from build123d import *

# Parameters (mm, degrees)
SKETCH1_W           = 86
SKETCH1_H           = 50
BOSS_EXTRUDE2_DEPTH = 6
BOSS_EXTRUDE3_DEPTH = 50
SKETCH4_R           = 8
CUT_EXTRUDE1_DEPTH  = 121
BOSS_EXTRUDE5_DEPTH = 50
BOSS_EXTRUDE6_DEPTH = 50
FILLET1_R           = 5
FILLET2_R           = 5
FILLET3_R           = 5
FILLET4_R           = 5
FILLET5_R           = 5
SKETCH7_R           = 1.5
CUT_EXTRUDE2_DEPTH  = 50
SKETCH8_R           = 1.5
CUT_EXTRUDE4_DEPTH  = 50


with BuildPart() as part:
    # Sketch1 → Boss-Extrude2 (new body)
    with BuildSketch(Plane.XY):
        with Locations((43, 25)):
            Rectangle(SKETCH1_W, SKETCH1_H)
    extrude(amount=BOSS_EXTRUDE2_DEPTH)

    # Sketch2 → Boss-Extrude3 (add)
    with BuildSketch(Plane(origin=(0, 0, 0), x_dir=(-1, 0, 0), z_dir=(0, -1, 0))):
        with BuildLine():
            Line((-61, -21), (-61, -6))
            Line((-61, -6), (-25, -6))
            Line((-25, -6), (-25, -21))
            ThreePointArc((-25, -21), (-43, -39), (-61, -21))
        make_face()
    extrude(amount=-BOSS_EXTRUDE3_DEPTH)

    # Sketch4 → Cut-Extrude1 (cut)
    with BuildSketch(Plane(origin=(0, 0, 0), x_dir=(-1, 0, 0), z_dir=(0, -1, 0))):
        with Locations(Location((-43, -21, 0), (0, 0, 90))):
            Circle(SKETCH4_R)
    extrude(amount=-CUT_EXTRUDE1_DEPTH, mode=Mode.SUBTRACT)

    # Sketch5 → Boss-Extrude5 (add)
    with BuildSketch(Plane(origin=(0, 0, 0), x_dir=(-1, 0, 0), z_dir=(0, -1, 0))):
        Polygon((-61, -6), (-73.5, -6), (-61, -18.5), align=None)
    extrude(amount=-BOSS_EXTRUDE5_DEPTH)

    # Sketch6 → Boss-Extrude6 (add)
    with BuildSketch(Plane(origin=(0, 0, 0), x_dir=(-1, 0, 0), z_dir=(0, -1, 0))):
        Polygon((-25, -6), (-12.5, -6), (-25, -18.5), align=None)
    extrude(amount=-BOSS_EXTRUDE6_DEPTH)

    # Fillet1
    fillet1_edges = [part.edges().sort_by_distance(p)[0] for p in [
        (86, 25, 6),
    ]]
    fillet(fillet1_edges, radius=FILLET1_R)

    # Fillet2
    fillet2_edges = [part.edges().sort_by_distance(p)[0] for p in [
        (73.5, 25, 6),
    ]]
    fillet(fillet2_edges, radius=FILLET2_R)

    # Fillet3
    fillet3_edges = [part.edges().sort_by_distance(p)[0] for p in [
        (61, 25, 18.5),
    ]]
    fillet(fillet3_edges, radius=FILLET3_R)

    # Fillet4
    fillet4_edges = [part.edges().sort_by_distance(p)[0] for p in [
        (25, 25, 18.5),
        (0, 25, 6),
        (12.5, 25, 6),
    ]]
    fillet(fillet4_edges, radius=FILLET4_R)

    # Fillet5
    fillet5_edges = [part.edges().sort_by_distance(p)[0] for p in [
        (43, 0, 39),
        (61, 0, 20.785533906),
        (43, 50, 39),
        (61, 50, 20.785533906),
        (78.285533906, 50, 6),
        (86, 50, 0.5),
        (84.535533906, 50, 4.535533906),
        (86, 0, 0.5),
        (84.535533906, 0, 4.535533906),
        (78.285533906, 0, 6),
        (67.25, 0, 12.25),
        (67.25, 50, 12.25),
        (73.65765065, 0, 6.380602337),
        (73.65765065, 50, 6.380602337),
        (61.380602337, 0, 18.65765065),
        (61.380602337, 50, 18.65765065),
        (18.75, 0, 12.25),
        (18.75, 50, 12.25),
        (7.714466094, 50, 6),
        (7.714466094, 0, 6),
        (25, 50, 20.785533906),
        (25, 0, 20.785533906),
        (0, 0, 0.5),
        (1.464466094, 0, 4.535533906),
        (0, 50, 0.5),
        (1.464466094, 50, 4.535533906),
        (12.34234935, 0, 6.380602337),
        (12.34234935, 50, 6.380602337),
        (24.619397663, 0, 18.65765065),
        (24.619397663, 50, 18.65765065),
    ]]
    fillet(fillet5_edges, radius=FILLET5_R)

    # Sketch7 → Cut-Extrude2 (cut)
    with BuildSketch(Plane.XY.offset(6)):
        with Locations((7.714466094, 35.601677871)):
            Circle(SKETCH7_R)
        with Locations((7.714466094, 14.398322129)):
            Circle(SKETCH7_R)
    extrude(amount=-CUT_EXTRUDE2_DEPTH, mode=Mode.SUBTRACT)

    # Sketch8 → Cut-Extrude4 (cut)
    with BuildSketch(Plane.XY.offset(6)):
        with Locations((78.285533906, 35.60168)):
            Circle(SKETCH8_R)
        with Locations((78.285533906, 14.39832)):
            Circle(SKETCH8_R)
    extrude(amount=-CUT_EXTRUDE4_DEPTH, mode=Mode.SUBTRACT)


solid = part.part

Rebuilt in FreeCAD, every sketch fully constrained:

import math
import FreeCAD as App
import Part
import Sketcher

V = App.Vector


def edges_at(feature, points):
    """Names of the edges that pass closest to the given points."""
    edges = feature.Shape.Edges
    near = lambda p: min(range(len(edges)), key=lambda i: edges[i].distToShape(Part.Vertex(*p))[0])
    return sorted({f"Edge{near(p) + 1}" for p in points})


def add_polygon(sketch, points):
    """Adds a closed chain of lines whose ends are joined by coincident constraints."""
    first, n = sketch.GeometryCount, len(points)
    for a, b in zip(points, points[1:] + points[:1]):
        sketch.addGeometry(Part.LineSegment(App.Vector(*a, 0), App.Vector(*b, 0)), False)
    for i in range(n):
        sketch.addConstraint(Sketcher.Constraint("Coincident", first + i, 2, first + (i + 1) % n, 1))

doc = App.newDocument("Part")
body = doc.addObject("PartDesign::Body", "Body")

# Sketch on XY plane
sketch1 = body.newObject("Sketcher::SketchObject", "Sketch")
sketch1.AttachmentSupport = (doc.getObject("XY_Plane"), [""])
sketch1.MapMode = "FlatFace"
add_polygon(sketch1, [(0, 50), (0, 0), (86, 0), (86, 50)])  # lines 0-3
sketch1.addConstraint([
    Sketcher.Constraint("Vertical", 0),
    Sketcher.Constraint("Horizontal", 1),
    Sketcher.Constraint("Vertical", 2),
    Sketcher.Constraint("Horizontal", 3),
    Sketcher.Constraint("Coincident", 0, 2, -1, 1),
    Sketcher.Constraint("DistanceX", 1, 1, 1, 2, 86.0),
    Sketcher.Constraint("DistanceY", 0, 2, 0, 1, 50.0),
])
pad1 = body.newObject("PartDesign::Pad", "Pad")
pad1.Profile = sketch1
pad1.Length = 6

# Sketch on XZ plane
sketch2 = body.newObject("Sketcher::SketchObject", "Sketch001")
sketch2.AttachmentSupport = (doc.getObject("XZ_Plane"), [""])
sketch2.MapMode = "FlatFace"
sketch2.addGeometry([
    Part.LineSegment(V(61, 6, 0), V(61, 21, 0)),
    Part.ArcOfCircle(Part.Circle(V(43, 21, 0), V(0, 0, 1), 18), math.radians(0), math.radians(180)),
    Part.LineSegment(V(25, 21, 0), V(25, 6, 0)),
    Part.LineSegment(V(25, 6, 0), V(61, 6, 0)),
], False)
sketch2.addConstraint([
    Sketcher.Constraint("Tangent", 0, 2, 1, 1),
    Sketcher.Constraint("Tangent", 1, 2, 2, 1),
    Sketcher.Constraint("Coincident", 2, 2, 3, 1),
    Sketcher.Constraint("Coincident", 3, 2, 0, 1),
    Sketcher.Constraint("Vertical", 0),
    Sketcher.Constraint("Vertical", 2),
    Sketcher.Constraint("Horizontal", 3),
    Sketcher.Constraint("Radius", 1, 18.0),
    Sketcher.Constraint("DistanceY", 0, 1, 0, 2, 15.0),
    Sketcher.Constraint("DistanceX", -1, 1, 1, 3, 43.0),
    Sketcher.Constraint("DistanceY", -1, 1, 1, 3, 21.0),
])
pad2 = body.newObject("PartDesign::Pad", "Pad001")
pad2.Profile = sketch2
pad2.Length = 50
pad2.Reversed = True

# Sketch on XZ plane
sketch3 = body.newObject("Sketcher::SketchObject", "Sketch002")
sketch3.AttachmentSupport = (doc.getObject("XZ_Plane"), [""])
sketch3.MapMode = "FlatFace"
sketch3.addGeometry(Part.Circle(V(43, 21, 0), V(0, 0, 1), 8), False)
sketch3.addConstraint([
    Sketcher.Constraint("Diameter", 0, 16.0),
    Sketcher.Constraint("DistanceX", -1, 1, 0, 3, 43.0),
    Sketcher.Constraint("DistanceY", -1, 1, 0, 3, 21.0),
])
pocket1 = body.newObject("PartDesign::Pocket", "Pocket")
pocket1.Profile = sketch3
pocket1.Length = 121

# Sketch on XZ plane
sketch4 = body.newObject("Sketcher::SketchObject", "Sketch003")
sketch4.AttachmentSupport = (doc.getObject("XZ_Plane"), [""])
sketch4.MapMode = "FlatFace"
add_polygon(sketch4, [(61, 6), (73.5, 6), (61, 18.5)])  # lines 0-2
sketch4.addConstraint([
    Sketcher.Constraint("Horizontal", 0),
    Sketcher.Constraint("Vertical", 2),
    Sketcher.Constraint("Equal", 0, 2),
    Sketcher.Constraint("DistanceX", 0, 1, 0, 2, 12.5),
    Sketcher.Constraint("DistanceY", -1, 1, 0, 2, 6.0),
    Sketcher.Constraint("DistanceX", -1, 1, 1, 2, 61.0),
])
pad3 = body.newObject("PartDesign::Pad", "Pad002")
pad3.Profile = sketch4
pad3.Length = 50
pad3.Reversed = True

# Sketch on XZ plane
sketch5 = body.newObject("Sketcher::SketchObject", "Sketch004")
sketch5.AttachmentSupport = (doc.getObject("XZ_Plane"), [""])
sketch5.MapMode = "FlatFace"
add_polygon(sketch5, [(12.5, 6), (25, 6), (25, 18.5)])  # lines 0-2
sketch5.addConstraint([
    Sketcher.Constraint("Horizontal", 0),
    Sketcher.Constraint("Vertical", 1),
    Sketcher.Constraint("Equal", 0, 1),
    Sketcher.Constraint("DistanceX", 0, 1, 0, 2, 12.5),
    Sketcher.Constraint("DistanceX", -1, 1, 0, 2, 25.0),
    Sketcher.Constraint("DistanceY", -1, 1, 0, 2, 6.0),
])
pad4 = body.newObject("PartDesign::Pad", "Pad003")
pad4.Profile = sketch5
pad4.Length = 50
pad4.Reversed = True
doc.recompute()

fillet = body.newObject("PartDesign::Fillet", "Fillet")
fillet.Base = (pad4, edges_at(pad4, [(86, 25, 6)]))
fillet.Radius = 5
doc.recompute()

fillet2 = body.newObject("PartDesign::Fillet", "Fillet001")
fillet2.Base = (fillet, edges_at(fillet, [(73.5, 25, 6)]))
fillet2.Radius = 5
doc.recompute()

fillet3 = body.newObject("PartDesign::Fillet", "Fillet002")
fillet3.Base = (fillet2, edges_at(fillet2, [(61, 25, 18.5)]))
fillet3.Radius = 5
doc.recompute()

fillet4 = body.newObject("PartDesign::Fillet", "Fillet003")
fillet4.Base = (fillet3, edges_at(fillet3, [(25, 25, 18.5), (0, 25, 6), (12.5, 25, 6)]))
fillet4.Radius = 5
doc.recompute()

fillet5 = body.newObject("PartDesign::Fillet", "Fillet004")
fillet5.Base = (fillet4, edges_at(fillet4, [
    (43, 0, 39),
    (61, 0, 20.786),
    (43, 50, 39),
    (61, 50, 20.786),
    (78.286, 50, 6),
    (86, 50, 0.5),
    (84.536, 50, 4.536),
    (86, 0, 0.5),
    (84.536, 0, 4.536),
    (78.286, 0, 6),
    (67.25, 0, 12.25),
    (67.25, 50, 12.25),
    (73.658, 0, 6.381),
    (73.658, 50, 6.381),
    (61.381, 0, 18.658),
    (61.381, 50, 18.658),
    (18.75, 0, 12.25),
    (18.75, 50, 12.25),
    (7.714, 50, 6),
    (7.714, 0, 6),
    (25, 50, 20.786),
    (25, 0, 20.786),
    (0, 0, 0.5),
    (1.464, 0, 4.536),
    (0, 50, 0.5),
    (1.464, 50, 4.536),
    (12.342, 0, 6.381),
    (12.342, 50, 6.381),
    (24.619, 0, 18.658),
    (24.619, 50, 18.658),
]))
fillet5.Radius = 5

# Sketch on XY plane
sketch6 = body.newObject("Sketcher::SketchObject", "Sketch005")
sketch6.AttachmentSupport = (doc.getObject("XY_Plane"), [""])
sketch6.MapMode = "FlatFace"
sketch6.AttachmentOffset = App.Placement(V(0, 0, 6), App.Rotation())
sketch6.addGeometry([
    Part.Circle(V(7.714466, 35.601678, 0), V(0, 0, 1), 1.5),
    Part.Circle(V(7.714466, 14.398322, 0), V(0, 0, 1), 1.5),
], False)
sketch6.addConstraint([
    Sketcher.Constraint("Equal", 0, 1),
    Sketcher.Constraint("Vertical", 0, 3, 1, 3),
    Sketcher.Constraint("Diameter", 0, 3.0),
    Sketcher.Constraint("DistanceX", -1, 1, 0, 3, 7.714466),
    Sketcher.Constraint("DistanceY", -1, 1, 0, 3, 35.601678),
    Sketcher.Constraint("DistanceY", -1, 1, 1, 3, 14.398322),
])
pocket2 = body.newObject("PartDesign::Pocket", "Pocket001")
pocket2.Profile = sketch6
pocket2.Length = 50

# Sketch on XY plane
sketch7 = body.newObject("Sketcher::SketchObject", "Sketch006")
sketch7.AttachmentSupport = (doc.getObject("XY_Plane"), [""])
sketch7.MapMode = "FlatFace"
sketch7.AttachmentOffset = App.Placement(V(0, 0, 6), App.Rotation())
sketch7.addGeometry([
    Part.Circle(V(78.285534, 35.60168, 0), V(0, 0, 1), 1.5),
    Part.Circle(V(78.285534, 14.39832, 0), V(0, 0, 1), 1.5),
], False)
sketch7.addConstraint([
    Sketcher.Constraint("Equal", 0, 1),
    Sketcher.Constraint("Vertical", 0, 3, 1, 3),
    Sketcher.Constraint("Diameter", 0, 3.0),
    Sketcher.Constraint("DistanceY", -1, 1, 0, 3, 35.60168),
    Sketcher.Constraint("DistanceY", -1, 1, 1, 3, 14.39832),
    Sketcher.Constraint("DistanceX", -1, 1, 0, 3, 78.285534),
])
pocket3 = body.newObject("PartDesign::Pocket", "Pocket002")
pocket3.Profile = sketch7
pocket3.Length = 50

doc.recompute()
